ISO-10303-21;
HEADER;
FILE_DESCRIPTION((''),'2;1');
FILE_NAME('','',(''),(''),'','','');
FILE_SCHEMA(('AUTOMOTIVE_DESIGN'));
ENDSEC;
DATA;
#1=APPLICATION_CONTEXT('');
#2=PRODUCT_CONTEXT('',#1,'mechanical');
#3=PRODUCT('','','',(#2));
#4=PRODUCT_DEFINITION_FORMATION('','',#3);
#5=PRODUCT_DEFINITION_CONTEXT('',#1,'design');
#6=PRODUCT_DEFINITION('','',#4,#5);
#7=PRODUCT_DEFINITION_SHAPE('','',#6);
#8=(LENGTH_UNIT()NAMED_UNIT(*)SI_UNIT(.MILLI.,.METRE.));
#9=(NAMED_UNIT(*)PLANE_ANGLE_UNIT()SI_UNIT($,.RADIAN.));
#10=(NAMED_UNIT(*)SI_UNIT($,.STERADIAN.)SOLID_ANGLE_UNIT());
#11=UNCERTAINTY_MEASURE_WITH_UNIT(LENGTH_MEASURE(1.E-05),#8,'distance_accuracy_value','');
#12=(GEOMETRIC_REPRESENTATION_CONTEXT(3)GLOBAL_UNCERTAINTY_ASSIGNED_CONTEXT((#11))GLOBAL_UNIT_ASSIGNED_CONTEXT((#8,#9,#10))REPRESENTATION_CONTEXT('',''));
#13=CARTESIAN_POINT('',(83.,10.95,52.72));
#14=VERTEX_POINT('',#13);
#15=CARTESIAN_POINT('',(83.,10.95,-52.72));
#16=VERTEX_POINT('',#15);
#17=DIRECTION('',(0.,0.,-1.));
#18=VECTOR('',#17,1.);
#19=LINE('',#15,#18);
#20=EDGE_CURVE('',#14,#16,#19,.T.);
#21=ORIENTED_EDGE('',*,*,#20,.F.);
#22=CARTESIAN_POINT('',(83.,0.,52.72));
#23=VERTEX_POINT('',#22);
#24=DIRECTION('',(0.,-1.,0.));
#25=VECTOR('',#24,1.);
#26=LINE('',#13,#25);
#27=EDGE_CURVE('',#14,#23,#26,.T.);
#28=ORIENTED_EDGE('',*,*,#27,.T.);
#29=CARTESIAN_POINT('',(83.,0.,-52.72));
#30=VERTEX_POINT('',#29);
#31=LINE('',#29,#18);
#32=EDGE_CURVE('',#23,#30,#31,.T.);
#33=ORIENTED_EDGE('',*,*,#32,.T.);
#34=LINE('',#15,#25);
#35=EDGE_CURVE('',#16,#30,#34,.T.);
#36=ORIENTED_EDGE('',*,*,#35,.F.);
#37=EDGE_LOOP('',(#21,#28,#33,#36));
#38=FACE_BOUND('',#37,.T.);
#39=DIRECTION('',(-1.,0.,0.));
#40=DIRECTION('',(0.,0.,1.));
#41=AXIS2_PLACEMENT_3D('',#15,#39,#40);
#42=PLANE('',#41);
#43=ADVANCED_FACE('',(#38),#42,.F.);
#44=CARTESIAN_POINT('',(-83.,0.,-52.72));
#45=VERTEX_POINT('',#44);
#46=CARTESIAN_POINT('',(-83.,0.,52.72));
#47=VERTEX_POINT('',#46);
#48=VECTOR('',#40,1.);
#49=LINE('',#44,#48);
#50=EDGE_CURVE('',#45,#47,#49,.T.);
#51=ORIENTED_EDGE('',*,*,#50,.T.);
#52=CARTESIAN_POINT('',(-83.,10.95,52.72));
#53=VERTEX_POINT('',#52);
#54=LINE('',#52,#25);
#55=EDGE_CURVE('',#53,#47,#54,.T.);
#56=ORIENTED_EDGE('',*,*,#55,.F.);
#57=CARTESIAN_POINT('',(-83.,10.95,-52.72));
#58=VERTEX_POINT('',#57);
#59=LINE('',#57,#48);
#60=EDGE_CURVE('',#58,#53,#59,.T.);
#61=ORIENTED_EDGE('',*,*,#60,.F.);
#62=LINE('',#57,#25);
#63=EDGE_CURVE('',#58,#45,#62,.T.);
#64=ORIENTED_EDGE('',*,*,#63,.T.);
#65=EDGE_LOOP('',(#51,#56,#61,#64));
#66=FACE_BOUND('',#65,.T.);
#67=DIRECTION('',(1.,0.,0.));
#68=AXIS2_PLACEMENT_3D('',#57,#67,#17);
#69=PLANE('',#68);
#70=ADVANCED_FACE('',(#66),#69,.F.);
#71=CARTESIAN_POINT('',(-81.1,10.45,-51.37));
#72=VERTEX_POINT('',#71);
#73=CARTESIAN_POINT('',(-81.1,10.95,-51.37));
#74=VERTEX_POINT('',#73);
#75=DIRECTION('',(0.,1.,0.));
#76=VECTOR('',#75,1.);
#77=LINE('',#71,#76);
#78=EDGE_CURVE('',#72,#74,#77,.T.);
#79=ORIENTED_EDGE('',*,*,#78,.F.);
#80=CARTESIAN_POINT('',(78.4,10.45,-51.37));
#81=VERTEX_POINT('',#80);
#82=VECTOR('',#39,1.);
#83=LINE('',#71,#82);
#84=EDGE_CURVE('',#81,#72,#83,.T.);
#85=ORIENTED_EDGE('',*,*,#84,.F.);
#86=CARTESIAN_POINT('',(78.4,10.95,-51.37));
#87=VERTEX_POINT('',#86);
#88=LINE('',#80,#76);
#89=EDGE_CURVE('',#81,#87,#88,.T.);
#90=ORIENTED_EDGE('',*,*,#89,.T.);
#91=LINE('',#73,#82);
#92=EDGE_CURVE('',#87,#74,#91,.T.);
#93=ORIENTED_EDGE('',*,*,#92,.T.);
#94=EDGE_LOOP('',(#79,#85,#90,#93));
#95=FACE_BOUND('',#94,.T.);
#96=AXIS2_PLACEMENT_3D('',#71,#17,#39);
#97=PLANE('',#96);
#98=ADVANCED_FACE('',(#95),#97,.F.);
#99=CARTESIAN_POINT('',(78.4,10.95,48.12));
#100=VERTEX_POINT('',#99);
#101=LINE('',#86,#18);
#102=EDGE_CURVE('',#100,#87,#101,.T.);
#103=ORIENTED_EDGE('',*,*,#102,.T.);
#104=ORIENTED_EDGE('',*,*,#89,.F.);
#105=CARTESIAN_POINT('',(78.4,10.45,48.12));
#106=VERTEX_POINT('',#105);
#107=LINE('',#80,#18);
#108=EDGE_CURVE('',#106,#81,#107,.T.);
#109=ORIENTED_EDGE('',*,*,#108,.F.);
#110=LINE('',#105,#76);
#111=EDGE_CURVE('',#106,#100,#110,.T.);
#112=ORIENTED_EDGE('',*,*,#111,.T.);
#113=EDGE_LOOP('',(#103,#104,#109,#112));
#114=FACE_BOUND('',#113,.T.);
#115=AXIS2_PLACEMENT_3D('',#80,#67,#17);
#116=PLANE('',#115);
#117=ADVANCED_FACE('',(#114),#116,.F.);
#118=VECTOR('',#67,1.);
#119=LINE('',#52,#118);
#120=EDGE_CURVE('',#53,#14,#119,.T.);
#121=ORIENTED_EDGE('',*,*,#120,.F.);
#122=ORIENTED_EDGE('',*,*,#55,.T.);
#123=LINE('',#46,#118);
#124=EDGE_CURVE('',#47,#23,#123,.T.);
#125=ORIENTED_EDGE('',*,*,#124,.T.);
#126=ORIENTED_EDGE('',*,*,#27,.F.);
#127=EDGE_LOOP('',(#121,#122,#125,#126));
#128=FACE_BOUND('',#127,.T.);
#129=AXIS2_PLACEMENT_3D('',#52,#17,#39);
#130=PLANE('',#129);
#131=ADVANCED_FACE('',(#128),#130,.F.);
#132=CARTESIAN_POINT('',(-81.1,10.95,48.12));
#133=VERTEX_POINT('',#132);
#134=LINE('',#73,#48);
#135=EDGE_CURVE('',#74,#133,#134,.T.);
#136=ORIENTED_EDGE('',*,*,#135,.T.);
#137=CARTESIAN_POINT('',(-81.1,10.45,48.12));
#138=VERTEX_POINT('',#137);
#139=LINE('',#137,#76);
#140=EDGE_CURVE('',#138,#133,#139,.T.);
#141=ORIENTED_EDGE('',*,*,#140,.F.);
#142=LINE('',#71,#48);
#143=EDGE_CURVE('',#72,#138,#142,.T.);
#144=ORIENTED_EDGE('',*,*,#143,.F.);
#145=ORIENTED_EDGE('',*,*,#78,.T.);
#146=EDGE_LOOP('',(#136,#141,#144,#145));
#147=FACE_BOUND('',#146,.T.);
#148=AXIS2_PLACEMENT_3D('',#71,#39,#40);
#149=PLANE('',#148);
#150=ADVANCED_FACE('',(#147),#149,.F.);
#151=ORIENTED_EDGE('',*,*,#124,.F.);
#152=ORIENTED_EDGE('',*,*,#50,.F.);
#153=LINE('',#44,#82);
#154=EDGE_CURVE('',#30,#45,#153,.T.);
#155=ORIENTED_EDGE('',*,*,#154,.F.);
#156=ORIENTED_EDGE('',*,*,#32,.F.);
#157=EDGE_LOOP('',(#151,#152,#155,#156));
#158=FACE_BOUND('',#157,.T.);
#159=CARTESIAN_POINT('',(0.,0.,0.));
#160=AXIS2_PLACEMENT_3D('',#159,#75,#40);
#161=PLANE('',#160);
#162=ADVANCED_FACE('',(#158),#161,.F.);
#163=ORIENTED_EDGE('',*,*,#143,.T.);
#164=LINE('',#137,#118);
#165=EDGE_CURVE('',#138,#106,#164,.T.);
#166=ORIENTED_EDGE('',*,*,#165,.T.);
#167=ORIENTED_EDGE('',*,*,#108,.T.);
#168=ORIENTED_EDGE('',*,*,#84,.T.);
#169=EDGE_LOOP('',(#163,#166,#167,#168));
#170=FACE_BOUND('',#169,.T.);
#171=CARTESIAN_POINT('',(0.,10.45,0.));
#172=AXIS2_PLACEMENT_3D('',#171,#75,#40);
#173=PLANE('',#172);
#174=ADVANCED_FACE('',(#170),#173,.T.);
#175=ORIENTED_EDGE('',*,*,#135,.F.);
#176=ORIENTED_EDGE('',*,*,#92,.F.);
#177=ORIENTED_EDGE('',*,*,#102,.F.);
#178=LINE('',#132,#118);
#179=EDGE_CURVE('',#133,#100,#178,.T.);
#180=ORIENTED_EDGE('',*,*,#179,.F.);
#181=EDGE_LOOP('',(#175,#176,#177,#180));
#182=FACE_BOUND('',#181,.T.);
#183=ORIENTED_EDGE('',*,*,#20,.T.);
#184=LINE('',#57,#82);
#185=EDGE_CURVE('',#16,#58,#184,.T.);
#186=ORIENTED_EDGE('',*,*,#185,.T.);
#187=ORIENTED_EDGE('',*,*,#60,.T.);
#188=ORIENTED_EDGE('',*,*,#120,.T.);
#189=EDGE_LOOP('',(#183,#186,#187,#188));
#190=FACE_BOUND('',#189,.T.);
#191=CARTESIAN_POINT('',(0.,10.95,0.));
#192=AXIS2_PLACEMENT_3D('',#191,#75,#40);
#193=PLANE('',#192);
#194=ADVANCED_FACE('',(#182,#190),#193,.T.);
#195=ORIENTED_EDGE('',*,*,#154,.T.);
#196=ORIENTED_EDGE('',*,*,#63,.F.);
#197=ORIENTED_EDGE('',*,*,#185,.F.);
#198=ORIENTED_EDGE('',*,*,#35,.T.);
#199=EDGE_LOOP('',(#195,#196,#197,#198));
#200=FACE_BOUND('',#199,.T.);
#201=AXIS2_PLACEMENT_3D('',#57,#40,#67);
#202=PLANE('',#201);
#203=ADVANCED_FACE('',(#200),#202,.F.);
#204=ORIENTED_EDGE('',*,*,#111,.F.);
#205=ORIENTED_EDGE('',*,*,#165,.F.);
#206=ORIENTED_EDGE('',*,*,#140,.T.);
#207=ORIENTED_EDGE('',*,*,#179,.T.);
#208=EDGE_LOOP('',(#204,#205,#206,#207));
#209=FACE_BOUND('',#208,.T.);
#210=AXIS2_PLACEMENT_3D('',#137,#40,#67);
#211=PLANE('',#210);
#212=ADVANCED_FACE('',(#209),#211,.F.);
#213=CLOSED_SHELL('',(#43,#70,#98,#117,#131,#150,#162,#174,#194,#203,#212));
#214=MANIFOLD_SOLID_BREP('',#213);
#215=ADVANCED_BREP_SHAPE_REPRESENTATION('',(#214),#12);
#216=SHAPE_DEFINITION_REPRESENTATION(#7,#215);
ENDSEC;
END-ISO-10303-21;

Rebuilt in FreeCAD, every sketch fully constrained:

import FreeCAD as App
import Part
import Sketcher

doc = App.newDocument("Part")
body = doc.addObject("PartDesign::Body", "Body")

# Sketch on XZ plane
sketch1 = body.newObject("Sketcher::SketchObject", "Sketch")
sketch1.AttachmentSupport = (doc.getObject("XZ_Plane"), [""])
sketch1.MapMode = "FlatFace"
sketch1.addGeometry(Part.LineSegment(App.Vector(-83, -53, 0), App.Vector(-83, 53, 0)), False)
sketch1.addGeometry(Part.LineSegment(App.Vector(-83, 53, 0), App.Vector(83, 53, 0)), False)
sketch1.addGeometry(Part.LineSegment(App.Vector(83, 53, 0), App.Vector(83, -53, 0)), False)
sketch1.addGeometry(Part.LineSegment(App.Vector(83, -53, 0), App.Vector(-83, -53, 0)), False)
sketch1.addConstraint(Sketcher.Constraint("Coincident", 0, 2, 1, 1))
sketch1.addConstraint(Sketcher.Constraint("Coincident", 1, 2, 2, 1))
sketch1.addConstraint(Sketcher.Constraint("Coincident", 2, 2, 3, 1))
sketch1.addConstraint(Sketcher.Constraint("Coincident", 3, 2, 0, 1))
sketch1.addConstraint(Sketcher.Constraint("Vertical", 0))
sketch1.addConstraint(Sketcher.Constraint("Horizontal", 1))
sketch1.addConstraint(Sketcher.Constraint("Vertical", 2))
sketch1.addConstraint(Sketcher.Constraint("Horizontal", 3))
sketch1.addConstraint(Sketcher.Constraint("Symmetric", 0, 2, 2, 2, -1, 1))
sketch1.addConstraint(Sketcher.Constraint("DistanceX", 1, 1, 1, 2, 166.0))
sketch1.addConstraint(Sketcher.Constraint("DistanceY", 0, 1, 0, 2, 105.44))
pad1 = body.newObject("PartDesign::Pad", "Pad")
pad1.Profile = sketch1
pad1.Length = 10.95
pad1.Reversed = True

# Sketch on XZ plane
sketch2 = body.newObject("Sketcher::SketchObject", "Sketch001")
sketch2.AttachmentSupport = (doc.getObject("XZ_Plane"), [""])
sketch2.MapMode = "FlatFace"
sketch2.AttachmentOffset = App.Placement(App.Vector(0, 0, -10.95), App.Rotation())
sketch2.addGeometry(Part.LineSegment(App.Vector(-81, -51, 0), App.Vector(-81, 48, 0)), False)
sketch2.addGeometry(Part.LineSegment(App.Vector(-81, 48, 0), App.Vector(78, 48, 0)), False)
sketch2.addGeometry(Part.LineSegment(App.Vector(78, 48, 0), App.Vector(78, -51, 0)), False)
sketch2.addGeometry(Part.LineSegment(App.Vector(78, -51, 0), App.Vector(-81, -51, 0)), False)
sketch2.addConstraint(Sketcher.Constraint("Coincident", 0, 2, 1, 1))
sketch2.addConstraint(Sketcher.Constraint("Coincident", 1, 2, 2, 1))
sketch2.addConstraint(Sketcher.Constraint("Coincident", 2, 2, 3, 1))
sketch2.addConstraint(Sketcher.Constraint("Coincident", 3, 2, 0, 1))
sketch2.addConstraint(Sketcher.Constraint("Vertical", 0))
sketch2.addConstraint(Sketcher.Constraint("Horizontal", 1))
sketch2.addConstraint(Sketcher.Constraint("Vertical", 2))
sketch2.addConstraint(Sketcher.Constraint("Horizontal", 3))
sketch2.addConstraint(Sketcher.Constraint("DistanceX", 1, 1, 1, 2, 159.5))
sketch2.addConstraint(Sketcher.Constraint("DistanceY", 0, 1, 0, 2, 99.49))
sketch2.addConstraint(Sketcher.Constraint("DistanceX", 0, 2, -1, 1, 81.1))
sketch2.addConstraint(Sketcher.Constraint("DistanceY", -1, 1, 0, 2, 48.12))
pocket1 = body.newObject("PartDesign::Pocket", "Pocket")
pocket1.Profile = sketch2
pocket1.Length = 0.5
pocket1.Reversed = True

doc.recompute()
